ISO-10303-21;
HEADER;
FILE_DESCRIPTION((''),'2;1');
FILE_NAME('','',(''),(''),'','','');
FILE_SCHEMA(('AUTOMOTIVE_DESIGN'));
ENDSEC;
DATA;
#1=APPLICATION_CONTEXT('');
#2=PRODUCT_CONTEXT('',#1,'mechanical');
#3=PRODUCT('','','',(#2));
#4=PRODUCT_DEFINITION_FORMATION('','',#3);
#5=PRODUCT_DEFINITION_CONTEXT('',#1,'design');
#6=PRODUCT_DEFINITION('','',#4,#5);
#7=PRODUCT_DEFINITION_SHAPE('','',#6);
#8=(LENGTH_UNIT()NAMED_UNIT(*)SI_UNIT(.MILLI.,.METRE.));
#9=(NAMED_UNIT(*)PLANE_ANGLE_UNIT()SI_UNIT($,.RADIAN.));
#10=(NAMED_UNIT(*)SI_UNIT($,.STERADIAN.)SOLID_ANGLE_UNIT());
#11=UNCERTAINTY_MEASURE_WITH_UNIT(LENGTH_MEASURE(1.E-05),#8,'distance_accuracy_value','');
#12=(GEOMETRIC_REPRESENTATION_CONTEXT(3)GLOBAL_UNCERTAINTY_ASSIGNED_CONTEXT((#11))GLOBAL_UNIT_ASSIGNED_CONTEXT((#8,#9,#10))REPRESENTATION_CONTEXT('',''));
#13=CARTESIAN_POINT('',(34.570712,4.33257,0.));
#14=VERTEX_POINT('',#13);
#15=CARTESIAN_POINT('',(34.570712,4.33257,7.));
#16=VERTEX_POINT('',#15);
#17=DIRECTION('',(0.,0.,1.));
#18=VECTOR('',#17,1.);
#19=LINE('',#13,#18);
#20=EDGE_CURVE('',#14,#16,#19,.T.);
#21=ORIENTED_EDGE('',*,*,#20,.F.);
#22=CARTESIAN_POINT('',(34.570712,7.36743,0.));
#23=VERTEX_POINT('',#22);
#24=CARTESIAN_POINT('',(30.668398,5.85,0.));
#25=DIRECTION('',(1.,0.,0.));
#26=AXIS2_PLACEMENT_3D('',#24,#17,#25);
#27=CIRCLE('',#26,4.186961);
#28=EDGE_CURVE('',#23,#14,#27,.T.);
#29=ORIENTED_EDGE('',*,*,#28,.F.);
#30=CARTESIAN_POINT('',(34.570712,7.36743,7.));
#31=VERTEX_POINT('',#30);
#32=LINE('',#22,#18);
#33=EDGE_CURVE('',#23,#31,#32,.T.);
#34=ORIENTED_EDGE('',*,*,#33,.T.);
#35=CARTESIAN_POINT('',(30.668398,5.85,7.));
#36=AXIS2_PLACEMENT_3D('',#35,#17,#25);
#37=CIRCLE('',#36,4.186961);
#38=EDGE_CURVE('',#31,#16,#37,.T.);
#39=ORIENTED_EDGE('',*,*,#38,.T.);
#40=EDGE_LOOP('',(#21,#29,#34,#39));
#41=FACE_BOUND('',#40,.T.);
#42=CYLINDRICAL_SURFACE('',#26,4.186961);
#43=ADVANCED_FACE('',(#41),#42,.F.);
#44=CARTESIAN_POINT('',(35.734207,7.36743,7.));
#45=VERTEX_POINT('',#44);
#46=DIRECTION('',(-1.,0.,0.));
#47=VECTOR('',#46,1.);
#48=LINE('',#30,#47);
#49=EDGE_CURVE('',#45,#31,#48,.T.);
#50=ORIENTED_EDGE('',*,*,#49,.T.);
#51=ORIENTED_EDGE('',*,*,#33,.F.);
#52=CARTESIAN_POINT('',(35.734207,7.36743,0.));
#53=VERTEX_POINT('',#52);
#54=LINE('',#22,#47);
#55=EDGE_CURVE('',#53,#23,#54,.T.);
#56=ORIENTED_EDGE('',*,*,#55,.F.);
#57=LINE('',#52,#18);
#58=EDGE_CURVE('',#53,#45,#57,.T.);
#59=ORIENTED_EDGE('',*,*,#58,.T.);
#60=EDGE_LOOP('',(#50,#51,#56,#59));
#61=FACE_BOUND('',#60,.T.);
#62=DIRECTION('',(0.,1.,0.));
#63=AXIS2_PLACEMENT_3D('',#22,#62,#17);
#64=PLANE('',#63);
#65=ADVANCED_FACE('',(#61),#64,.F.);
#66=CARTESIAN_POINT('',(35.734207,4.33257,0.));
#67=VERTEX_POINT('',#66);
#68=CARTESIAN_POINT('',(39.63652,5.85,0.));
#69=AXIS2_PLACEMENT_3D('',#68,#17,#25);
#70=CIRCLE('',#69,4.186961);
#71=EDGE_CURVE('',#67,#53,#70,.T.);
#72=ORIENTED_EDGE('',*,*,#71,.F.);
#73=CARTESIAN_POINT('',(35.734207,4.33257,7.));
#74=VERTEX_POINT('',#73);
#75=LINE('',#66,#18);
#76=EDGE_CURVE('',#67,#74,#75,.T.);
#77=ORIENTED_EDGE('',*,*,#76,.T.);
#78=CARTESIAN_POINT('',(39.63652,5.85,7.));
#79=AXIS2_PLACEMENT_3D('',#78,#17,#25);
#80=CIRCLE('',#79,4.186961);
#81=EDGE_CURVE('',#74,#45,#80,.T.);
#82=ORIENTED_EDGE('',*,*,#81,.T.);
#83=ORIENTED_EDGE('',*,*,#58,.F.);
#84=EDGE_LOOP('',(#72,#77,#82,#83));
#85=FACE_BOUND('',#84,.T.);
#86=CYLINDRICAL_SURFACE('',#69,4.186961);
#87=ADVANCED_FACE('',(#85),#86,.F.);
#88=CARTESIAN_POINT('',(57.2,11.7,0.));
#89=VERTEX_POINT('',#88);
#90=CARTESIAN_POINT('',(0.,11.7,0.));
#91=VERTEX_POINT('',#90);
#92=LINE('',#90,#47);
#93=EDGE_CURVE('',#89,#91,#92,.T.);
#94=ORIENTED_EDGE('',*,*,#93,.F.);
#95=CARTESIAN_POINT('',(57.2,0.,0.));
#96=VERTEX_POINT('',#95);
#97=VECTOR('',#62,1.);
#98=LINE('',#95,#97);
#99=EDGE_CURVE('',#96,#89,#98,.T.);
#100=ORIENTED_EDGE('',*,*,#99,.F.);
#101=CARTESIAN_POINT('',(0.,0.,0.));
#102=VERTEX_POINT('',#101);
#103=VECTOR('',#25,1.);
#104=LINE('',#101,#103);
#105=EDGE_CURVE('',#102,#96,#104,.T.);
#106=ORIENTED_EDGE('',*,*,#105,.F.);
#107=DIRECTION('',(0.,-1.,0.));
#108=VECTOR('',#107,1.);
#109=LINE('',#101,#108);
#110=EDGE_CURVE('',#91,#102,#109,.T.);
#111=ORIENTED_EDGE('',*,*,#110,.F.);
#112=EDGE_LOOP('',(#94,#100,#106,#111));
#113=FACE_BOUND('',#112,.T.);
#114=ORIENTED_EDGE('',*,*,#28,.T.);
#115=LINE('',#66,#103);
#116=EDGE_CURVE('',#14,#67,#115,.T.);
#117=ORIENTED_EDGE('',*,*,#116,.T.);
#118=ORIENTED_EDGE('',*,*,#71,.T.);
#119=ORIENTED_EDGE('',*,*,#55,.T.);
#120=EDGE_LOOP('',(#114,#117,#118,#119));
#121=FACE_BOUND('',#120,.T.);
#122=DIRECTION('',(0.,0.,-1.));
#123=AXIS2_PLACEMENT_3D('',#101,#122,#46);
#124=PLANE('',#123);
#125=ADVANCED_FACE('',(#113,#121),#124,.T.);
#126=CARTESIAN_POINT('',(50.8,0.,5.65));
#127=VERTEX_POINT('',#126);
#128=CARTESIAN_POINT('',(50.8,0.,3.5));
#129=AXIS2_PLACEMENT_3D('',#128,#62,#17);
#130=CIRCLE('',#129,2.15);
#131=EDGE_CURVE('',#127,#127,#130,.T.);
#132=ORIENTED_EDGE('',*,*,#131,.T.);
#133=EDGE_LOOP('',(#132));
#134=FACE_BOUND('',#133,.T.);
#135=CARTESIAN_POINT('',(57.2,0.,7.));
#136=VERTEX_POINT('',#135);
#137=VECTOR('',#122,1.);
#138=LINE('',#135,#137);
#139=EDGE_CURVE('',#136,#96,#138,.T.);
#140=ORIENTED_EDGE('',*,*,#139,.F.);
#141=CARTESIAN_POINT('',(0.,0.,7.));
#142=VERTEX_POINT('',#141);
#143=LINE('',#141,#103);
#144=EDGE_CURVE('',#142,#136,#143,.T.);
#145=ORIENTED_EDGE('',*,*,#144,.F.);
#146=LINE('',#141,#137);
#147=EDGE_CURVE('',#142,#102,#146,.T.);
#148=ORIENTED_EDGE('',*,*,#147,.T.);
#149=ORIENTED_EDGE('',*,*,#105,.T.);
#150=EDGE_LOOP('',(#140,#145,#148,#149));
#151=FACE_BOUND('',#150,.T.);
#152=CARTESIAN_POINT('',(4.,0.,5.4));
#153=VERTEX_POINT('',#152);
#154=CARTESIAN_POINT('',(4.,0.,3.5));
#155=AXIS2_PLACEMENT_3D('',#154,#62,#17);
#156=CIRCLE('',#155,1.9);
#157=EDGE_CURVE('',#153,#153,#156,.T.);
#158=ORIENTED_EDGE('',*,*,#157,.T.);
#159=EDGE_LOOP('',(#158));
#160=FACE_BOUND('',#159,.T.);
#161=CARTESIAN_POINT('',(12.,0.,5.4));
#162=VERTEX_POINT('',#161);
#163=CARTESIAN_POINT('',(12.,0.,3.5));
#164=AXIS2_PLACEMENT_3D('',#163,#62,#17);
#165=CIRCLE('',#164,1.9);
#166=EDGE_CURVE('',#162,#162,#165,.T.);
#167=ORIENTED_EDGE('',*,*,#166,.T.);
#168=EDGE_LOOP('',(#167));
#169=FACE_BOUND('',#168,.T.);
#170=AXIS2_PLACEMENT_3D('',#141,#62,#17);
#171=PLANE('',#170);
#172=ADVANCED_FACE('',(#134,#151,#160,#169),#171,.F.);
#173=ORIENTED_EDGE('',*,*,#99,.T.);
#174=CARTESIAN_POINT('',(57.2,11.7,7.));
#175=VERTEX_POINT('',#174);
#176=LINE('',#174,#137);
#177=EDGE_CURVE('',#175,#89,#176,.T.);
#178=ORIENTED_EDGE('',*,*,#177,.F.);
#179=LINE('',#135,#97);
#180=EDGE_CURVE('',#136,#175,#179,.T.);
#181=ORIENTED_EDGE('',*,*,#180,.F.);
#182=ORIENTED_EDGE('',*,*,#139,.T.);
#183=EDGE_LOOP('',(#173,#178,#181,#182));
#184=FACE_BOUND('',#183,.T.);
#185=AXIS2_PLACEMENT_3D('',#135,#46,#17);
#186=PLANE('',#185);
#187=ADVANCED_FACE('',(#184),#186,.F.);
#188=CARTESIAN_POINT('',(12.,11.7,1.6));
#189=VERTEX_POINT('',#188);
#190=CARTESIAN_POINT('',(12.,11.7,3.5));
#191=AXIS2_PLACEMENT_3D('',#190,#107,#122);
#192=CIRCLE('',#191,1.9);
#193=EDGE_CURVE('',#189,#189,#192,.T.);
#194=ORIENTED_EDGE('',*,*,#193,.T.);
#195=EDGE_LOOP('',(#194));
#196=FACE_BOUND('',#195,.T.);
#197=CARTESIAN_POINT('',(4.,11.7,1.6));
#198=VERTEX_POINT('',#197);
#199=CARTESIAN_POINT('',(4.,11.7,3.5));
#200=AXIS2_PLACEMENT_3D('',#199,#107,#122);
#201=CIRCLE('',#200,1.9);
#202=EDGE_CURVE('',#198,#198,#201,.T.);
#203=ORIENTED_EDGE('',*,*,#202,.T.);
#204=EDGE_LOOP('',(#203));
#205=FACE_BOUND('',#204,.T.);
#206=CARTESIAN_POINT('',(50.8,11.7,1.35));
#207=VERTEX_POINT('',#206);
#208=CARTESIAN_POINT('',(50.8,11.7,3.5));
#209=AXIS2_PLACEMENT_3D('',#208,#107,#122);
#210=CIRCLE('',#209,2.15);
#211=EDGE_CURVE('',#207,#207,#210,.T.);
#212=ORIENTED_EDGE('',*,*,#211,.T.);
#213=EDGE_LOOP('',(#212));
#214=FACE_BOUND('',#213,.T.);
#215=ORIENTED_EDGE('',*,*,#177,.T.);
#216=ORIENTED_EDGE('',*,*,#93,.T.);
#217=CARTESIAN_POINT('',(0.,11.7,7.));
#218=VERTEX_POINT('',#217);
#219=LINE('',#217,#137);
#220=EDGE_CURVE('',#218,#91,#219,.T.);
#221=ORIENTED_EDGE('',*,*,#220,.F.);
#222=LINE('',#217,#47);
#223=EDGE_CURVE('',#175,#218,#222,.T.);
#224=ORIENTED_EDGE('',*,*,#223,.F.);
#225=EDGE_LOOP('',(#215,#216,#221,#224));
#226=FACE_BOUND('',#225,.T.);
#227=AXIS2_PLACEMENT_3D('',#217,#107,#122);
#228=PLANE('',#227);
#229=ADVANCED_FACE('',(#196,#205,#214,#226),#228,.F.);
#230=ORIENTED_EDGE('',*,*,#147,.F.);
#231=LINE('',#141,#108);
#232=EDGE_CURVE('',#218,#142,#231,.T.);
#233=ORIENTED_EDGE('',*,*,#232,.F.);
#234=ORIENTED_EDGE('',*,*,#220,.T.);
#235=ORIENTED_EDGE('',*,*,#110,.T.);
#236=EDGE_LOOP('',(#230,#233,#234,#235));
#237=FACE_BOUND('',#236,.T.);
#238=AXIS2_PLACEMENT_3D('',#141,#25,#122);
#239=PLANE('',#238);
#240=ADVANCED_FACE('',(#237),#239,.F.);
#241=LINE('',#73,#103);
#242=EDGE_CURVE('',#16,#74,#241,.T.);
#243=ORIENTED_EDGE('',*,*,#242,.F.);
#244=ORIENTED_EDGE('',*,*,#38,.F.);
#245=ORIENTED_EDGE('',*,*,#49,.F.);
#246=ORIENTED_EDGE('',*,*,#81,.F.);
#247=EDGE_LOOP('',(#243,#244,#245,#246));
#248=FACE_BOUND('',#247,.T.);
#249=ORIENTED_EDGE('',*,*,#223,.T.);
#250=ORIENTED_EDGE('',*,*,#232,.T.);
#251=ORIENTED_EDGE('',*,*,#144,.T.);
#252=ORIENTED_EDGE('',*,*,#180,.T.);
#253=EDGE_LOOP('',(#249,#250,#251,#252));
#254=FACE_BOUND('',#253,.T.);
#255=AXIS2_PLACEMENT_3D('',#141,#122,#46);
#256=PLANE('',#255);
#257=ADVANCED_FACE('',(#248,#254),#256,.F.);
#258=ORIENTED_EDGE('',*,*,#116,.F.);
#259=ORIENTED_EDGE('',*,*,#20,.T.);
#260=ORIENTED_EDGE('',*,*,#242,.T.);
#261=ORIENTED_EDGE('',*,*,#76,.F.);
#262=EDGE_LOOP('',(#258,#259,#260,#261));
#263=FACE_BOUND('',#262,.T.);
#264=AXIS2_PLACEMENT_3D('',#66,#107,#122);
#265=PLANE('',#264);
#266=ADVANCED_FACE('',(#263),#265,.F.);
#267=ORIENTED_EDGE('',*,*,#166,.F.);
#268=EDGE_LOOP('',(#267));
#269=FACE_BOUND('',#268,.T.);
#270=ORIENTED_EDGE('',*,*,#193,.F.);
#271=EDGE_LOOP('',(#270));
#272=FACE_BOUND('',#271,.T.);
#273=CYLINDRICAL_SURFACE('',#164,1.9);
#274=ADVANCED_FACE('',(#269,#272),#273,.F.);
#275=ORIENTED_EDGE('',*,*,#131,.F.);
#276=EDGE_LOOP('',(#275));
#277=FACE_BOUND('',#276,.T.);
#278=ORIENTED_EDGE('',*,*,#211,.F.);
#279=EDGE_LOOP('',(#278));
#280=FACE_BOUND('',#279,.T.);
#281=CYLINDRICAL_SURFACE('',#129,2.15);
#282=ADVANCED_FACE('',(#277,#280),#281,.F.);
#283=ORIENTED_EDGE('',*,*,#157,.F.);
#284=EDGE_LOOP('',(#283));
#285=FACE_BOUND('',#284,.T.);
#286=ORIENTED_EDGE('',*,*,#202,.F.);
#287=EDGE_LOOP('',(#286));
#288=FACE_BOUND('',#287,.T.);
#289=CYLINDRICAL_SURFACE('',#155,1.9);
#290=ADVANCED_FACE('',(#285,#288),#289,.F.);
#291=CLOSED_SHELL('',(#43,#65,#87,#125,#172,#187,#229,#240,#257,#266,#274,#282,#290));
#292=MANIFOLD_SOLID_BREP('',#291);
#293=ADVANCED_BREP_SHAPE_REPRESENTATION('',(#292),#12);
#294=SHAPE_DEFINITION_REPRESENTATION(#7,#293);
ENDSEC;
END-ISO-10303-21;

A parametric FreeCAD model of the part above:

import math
import FreeCAD as App
import Part
import Sketcher

V = App.Vector


def add_polygon(sketch, points):
    """Adds a closed chain of lines whose ends are joined by coincident constraints."""
    first, n = sketch.GeometryCount, len(points)
    for a, b in zip(points, points[1:] + points[:1]):
        sketch.addGeometry(Part.LineSegment(App.Vector(*a, 0), App.Vector(*b, 0)), False)
    for i in range(n):
        sketch.addConstraint(Sketcher.Constraint("Coincident", first + i, 2, first + (i + 1) % n, 1))

doc = App.newDocument("Part")
body = doc.addObject("PartDesign::Body", "Body")

# Sketch on XY plane
sketch1 = body.newObject("Sketcher::SketchObject", "Sketch")
sketch1.AttachmentSupport = (doc.getObject("XY_Plane"), [""])
sketch1.MapMode = "FlatFace"
add_polygon(sketch1, [(0, 12), (0, 0), (57, 0), (57, 12)])  # lines 0-3
sketch1.addConstraint([
    Sketcher.Constraint("Vertical", 0),
    Sketcher.Constraint("Horizontal", 1),
    Sketcher.Constraint("Vertical", 2),
    Sketcher.Constraint("Horizontal", 3),
    Sketcher.Constraint("Coincident", 0, 2, -1, 1),
    Sketcher.Constraint("DistanceX", 1, 1, 1, 2, 57.2),
    Sketcher.Constraint("DistanceY", 0, 2, 0, 1, 11.7),
])
pad1 = body.newObject("PartDesign::Pad", "Pad")
pad1.Profile = sketch1
pad1.Length = 7

# Sketch on XZ plane
sketch2 = body.newObject("Sketcher::SketchObject", "Sketch001")
sketch2.AttachmentSupport = (doc.getObject("XZ_Plane"), [""])
sketch2.MapMode = "FlatFace"
sketch2.AttachmentOffset = App.Placement(V(0, 0, -11.7), App.Rotation())
sketch2.addGeometry([
    Part.Circle(V(50.8, 3.5, 0), V(0, 0, 1), 2.1),
    Part.Circle(V(4, 3.5, 0), V(0, 0, 1), 1.9),
    Part.Circle(V(12, 3.5, 0), V(0, 0, 1), 1.9),
], False)
sketch2.addConstraint([
    Sketcher.Constraint("Equal", 1, 2),
    Sketcher.Constraint("Horizontal", 0, 3, 1, 3),
    Sketcher.Constraint("Horizontal", 1, 3, 2, 3),
    Sketcher.Constraint("Diameter", 0, 4.3),
    Sketcher.Constraint("Diameter", 1, 3.8),
    Sketcher.Constraint("DistanceX", -1, 1, 1, 3, 4.0),
    Sketcher.Constraint("DistanceX", -1, 1, 2, 3, 12.0),
    Sketcher.Constraint("DistanceX", -1, 1, 0, 3, 50.8),
    Sketcher.Constraint("DistanceY", -1, 1, 0, 3, 3.5),
])
pocket1 = body.newObject("PartDesign::Pocket", "Pocket")
pocket1.Profile = sketch2
pocket1.Type = "ThroughAll"
pocket1.Midplane = True

# Sketch on XY plane
sketch3 = body.newObject("Sketcher::SketchObject", "Sketch002")
sketch3.AttachmentSupport = (doc.getObject("XY_Plane"), [""])
sketch3.MapMode = "FlatFace"
sketch3.AttachmentOffset = App.Placement(V(0, 0, 7), App.Rotation())
sketch3.addGeometry([
    Part.LineSegment(V(35.7, 7.4, 0), V(34.6, 7.4, 0)),
    Part.ArcOfCircle(Part.Circle(V(30.7, 5.8, 0), V(0, 0, 1), 4.2), math.radians(21), math.radians(339)),
    Part.LineSegment(V(34.6, 4.3, 0), V(35.7, 4.3, 0)),
    Part.ArcOfCircle(Part.Circle(V(39.6, 5.8, 0), V(0, 0, 1), 4.2), math.radians(-159), math.radians(159)),
], False)
sketch3.addConstraint([
    Sketcher.Constraint("Coincident", 0, 2, 1, 1),
    Sketcher.Constraint("Coincident", 1, 2, 2, 1),
    Sketcher.Constraint("Coincident", 2, 2, 3, 1),
    Sketcher.Constraint("Coincident", 3, 2, 0, 1),
    Sketcher.Constraint("Horizontal", 0),
    Sketcher.Constraint("Horizontal", 2),
    Sketcher.Constraint("Equal", 1, 3),
    Sketcher.Constraint("Horizontal", 1, 3, 3, 3),
    Sketcher.Constraint("Vertical", 0, 2, 1, 2),
    Sketcher.Constraint("DistanceY", -1, 1, 1, 3, 5.85),
    Sketcher.Constraint("Radius", 1, 4.186961),
    Sketcher.Constraint("DistanceX", -1, 1, 1, 3, 30.668398),
    Sketcher.Constraint("DistanceX", 0, 2, 0, 1, 1.163495),
    Sketcher.Constraint("DistanceX", -1, 1, 3, 3, 39.63652),
])
pocket2 = body.newObject("PartDesign::Pocket", "Pocket001")
pocket2.Profile = sketch3
pocket2.Type = "ThroughAll"

doc.recompute()
